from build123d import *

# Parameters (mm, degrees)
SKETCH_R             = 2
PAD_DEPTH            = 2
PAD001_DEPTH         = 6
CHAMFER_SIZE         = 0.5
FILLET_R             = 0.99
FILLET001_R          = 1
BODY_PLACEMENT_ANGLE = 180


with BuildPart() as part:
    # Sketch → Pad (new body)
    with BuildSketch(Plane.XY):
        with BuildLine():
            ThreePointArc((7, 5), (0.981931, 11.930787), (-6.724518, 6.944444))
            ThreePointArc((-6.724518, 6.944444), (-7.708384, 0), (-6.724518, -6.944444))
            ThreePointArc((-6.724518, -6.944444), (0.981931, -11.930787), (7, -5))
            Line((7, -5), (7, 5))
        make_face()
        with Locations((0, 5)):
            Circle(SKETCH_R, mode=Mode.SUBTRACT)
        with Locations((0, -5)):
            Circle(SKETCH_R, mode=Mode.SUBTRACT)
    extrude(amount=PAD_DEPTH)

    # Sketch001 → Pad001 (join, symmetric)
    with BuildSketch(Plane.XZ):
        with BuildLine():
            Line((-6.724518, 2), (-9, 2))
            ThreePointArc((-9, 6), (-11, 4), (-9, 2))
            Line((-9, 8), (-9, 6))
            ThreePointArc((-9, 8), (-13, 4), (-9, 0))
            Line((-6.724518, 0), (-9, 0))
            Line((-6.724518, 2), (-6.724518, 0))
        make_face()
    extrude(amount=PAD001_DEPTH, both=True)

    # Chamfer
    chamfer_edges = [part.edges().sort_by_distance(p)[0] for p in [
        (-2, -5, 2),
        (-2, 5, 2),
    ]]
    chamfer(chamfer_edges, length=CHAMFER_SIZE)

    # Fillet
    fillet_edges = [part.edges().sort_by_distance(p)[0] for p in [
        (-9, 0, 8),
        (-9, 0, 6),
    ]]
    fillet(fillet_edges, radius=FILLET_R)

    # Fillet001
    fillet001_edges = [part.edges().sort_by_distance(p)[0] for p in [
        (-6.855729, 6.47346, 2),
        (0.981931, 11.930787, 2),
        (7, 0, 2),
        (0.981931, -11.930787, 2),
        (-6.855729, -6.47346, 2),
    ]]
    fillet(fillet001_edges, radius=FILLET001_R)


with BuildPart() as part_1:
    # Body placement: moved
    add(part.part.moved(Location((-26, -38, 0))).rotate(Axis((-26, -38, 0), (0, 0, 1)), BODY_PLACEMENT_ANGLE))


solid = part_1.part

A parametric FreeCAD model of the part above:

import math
import FreeCAD as App
import Part
import Sketcher
from FreeCAD import Vector


def edges_at(feature, points):
    """Names of the edges that pass closest to the given points."""
    edges = feature.Shape.Edges
    near = lambda p: min(range(len(edges)), key=lambda i: edges[i].distToShape(Part.Vertex(*p))[0])
    return sorted({f"Edge{near(p) + 1}" for p in points})

doc = App.newDocument("Part")
params = doc.addObject("Spreadsheet::Sheet", "Params")
for row, (alias, value) in enumerate([
    ("sketch1_diameter", "4 mm"),
    ("sketch1_radius", "7 mm"),
    ("sketch1_height", "10 mm"),
    ("pad1_length", "2 mm"),
    ("sketch2_radius", "2 mm"),
    ("sketch2_radius2", "4 mm"),
    ("pad2_length", "12 mm"),
    ("chamfer_size", "0.5 mm"),
    ("fillet_radius", "0.99 mm"),
    ("fillet2_radius", "1 mm"),
], start=1):
    params.set(f"A{row}", alias)
    params.set(f"B{row}", "=" + value)
    params.setAlias(f"B{row}", alias)

body = doc.addObject("PartDesign::Body", "Body")

# Sketch on XY plane
sketch1 = body.newObject("Sketcher::SketchObject", "Sketch")
sketch1.AttachmentSupport = (doc.getObject("XY_Plane"), [""])
sketch1.MapMode = "FlatFace"
sketch1.addGeometry([
    Part.ArcOfCircle(Part.Circle(Vector(0, 5, 0), Vector(0, 0, 1), 7), math.radians(0), math.radians(164)),  # 0
    Part.ArcOfCircle(Part.Circle(Vector(17.3, 0, 0), Vector(0, 0, 1), 25), math.radians(164), math.radians(196)),  # 1
    Part.ArcOfCircle(Part.Circle(Vector(0, -5, 0), Vector(0, 0, 1), 7), math.radians(-164), math.radians(0)),  # 2
    Part.LineSegment(Vector(7, -5, 0), Vector(7, 5, 0)),  # 3
    Part.Circle(Vector(0, -5, 0), Vector(0, 0, 1), 2),  # 4
    Part.Circle(Vector(0, 5, 0), Vector(0, 0, 1), 2),  # 5
], False)
sketch1.addConstraint([
    Sketcher.Constraint("Tangent", 0, 2, 1, 1),
    Sketcher.Constraint("Tangent", 1, 2, 2, 1),
    Sketcher.Constraint("Tangent", 2, 2, 3, 1),
    Sketcher.Constraint("Tangent", 3, 2, 0, 1),
    Sketcher.Constraint("Vertical", 3),
    Sketcher.Constraint("Coincident", 4, 3, 2, 3),
    Sketcher.Constraint("Coincident", 5, 3, 0, 3),
    Sketcher.Constraint("Equal", 0, 2),
    Sketcher.Constraint("Equal", 4, 5),
    Sketcher.Constraint("Symmetric", 0, 3, 2, 3, -1, 1),
    Sketcher.Constraint("Diameter", 4, 4.0),
    Sketcher.Constraint("Radius", 0, 7.0),
    Sketcher.Constraint("DistanceY", 3, 1, 3, 2, 10.0),
    Sketcher.Constraint("Radius", 1, 24.999997),
])
sketch1.setExpression("Constraints[10]", "Params.sketch1_diameter")
sketch1.setExpression("Constraints[11]", "Params.sketch1_radius")
sketch1.setExpression("Constraints[12]", "Params.sketch1_height")
pad1 = body.newObject("PartDesign::Pad", "Pad")
pad1.Profile = sketch1
pad1.setExpression("Length", "Params.pad1_length")

# Sketch on XZ plane
sketch2 = body.newObject("Sketcher::SketchObject", "Sketch001")
sketch2.AttachmentSupport = (doc.getObject("XZ_Plane"), [""])
sketch2.MapMode = "FlatFace"
sketch2.addGeometry([
    Part.LineSegment(Vector(-6.7, 2, 0), Vector(-9, 2, 0)),  # 0
    Part.ArcOfCircle(Part.Circle(Vector(-9, 4, 0), Vector(0, 0, 1), 2), math.radians(90), math.radians(270)),  # 1
    Part.LineSegment(Vector(-9, 6, 0), Vector(-9, 8, 0)),  # 2
    Part.ArcOfCircle(Part.Circle(Vector(-9, 4, 0), Vector(0, 0, 1), 4), math.radians(90), math.radians(270)),  # 3
    Part.LineSegment(Vector(-9, 0, 0), Vector(-6.7, 0, 0)),  # 4
    Part.LineSegment(Vector(-6.7, 0, 0), Vector(-6.7, 2, 0)),  # 5
], False)
sketch2.addConstraint([
    Sketcher.Constraint("Tangent", 0, 2, 1, 2),
    Sketcher.Constraint("Coincident", 1, 1, 2, 1),
    Sketcher.Constraint("Coincident", 2, 2, 3, 1),
    Sketcher.Constraint("Tangent", 3, 2, 4, 1),
    Sketcher.Constraint("Coincident", 4, 2, 5, 1),
    Sketcher.Constraint("Coincident", 5, 2, 0, 1),
    Sketcher.Constraint("Horizontal", 0),
    Sketcher.Constraint("Vertical", 2),
    Sketcher.Constraint("Horizontal", 4),
    Sketcher.Constraint("Vertical", 5),
    Sketcher.Constraint("Coincident", 3, 3, 1, 3),
    Sketcher.Constraint("PointOnObject", 3, 2, -1),
    Sketcher.Constraint("Vertical", 0, 2, 1, 1),
    Sketcher.Constraint("Radius", 1, 2.0),
    Sketcher.Constraint("Radius", 3, 4.0),
    Sketcher.Constraint("DistanceX", 1, 3, -1, 1, 9.0),
    Sketcher.Constraint("DistanceX", 0, 2, 0, 1, 2.275482),
])
sketch2.setExpression("Constraints[13]", "Params.sketch2_radius")
sketch2.setExpression("Constraints[14]", "Params.sketch2_radius2")
pad2 = body.newObject("PartDesign::Pad", "Pad001")
pad2.Profile = sketch2
pad2.setExpression("Length", "Params.pad2_length")
pad2.Midplane = True
doc.recompute()

chamfer = body.newObject("PartDesign::Chamfer", "Chamfer")
chamfer.Base = (pad2, edges_at(pad2, [(-2, -5, 2), (-2, 5, 2)]))
chamfer.setExpression("Size", "Params.chamfer_size")
doc.recompute()

fillet = body.newObject("PartDesign::Fillet", "Fillet")
fillet.Base = (chamfer, edges_at(chamfer, [(-9, 0, 8), (-9, 0, 6)]))
fillet.setExpression("Radius", "Params.fillet_radius")
doc.recompute()

fillet2 = body.newObject("PartDesign::Fillet", "Fillet001")
fillet2.Base = (fillet, edges_at(fillet, [
    (-6.856, 6.473, 2),
    (0.982, 11.931, 2),
    (7, 0, 2),
    (0.982, -11.931, 2),
    (-6.856, -6.473, 2),
]))
fillet2.setExpression("Radius", "Params.fillet2_radius")
body2 = doc.addObject("PartDesign::Body", "Body001")
doc.recompute()

body.Placement = App.Placement(Vector(-26, -38, 0), App.Rotation(Vector(0, 0, 1), 180))
boolean = body2.newObject("PartDesign::Boolean", "Boolean")
boolean.Type = "Fuse"
boolean.addObjects([body])

doc.recompute()
